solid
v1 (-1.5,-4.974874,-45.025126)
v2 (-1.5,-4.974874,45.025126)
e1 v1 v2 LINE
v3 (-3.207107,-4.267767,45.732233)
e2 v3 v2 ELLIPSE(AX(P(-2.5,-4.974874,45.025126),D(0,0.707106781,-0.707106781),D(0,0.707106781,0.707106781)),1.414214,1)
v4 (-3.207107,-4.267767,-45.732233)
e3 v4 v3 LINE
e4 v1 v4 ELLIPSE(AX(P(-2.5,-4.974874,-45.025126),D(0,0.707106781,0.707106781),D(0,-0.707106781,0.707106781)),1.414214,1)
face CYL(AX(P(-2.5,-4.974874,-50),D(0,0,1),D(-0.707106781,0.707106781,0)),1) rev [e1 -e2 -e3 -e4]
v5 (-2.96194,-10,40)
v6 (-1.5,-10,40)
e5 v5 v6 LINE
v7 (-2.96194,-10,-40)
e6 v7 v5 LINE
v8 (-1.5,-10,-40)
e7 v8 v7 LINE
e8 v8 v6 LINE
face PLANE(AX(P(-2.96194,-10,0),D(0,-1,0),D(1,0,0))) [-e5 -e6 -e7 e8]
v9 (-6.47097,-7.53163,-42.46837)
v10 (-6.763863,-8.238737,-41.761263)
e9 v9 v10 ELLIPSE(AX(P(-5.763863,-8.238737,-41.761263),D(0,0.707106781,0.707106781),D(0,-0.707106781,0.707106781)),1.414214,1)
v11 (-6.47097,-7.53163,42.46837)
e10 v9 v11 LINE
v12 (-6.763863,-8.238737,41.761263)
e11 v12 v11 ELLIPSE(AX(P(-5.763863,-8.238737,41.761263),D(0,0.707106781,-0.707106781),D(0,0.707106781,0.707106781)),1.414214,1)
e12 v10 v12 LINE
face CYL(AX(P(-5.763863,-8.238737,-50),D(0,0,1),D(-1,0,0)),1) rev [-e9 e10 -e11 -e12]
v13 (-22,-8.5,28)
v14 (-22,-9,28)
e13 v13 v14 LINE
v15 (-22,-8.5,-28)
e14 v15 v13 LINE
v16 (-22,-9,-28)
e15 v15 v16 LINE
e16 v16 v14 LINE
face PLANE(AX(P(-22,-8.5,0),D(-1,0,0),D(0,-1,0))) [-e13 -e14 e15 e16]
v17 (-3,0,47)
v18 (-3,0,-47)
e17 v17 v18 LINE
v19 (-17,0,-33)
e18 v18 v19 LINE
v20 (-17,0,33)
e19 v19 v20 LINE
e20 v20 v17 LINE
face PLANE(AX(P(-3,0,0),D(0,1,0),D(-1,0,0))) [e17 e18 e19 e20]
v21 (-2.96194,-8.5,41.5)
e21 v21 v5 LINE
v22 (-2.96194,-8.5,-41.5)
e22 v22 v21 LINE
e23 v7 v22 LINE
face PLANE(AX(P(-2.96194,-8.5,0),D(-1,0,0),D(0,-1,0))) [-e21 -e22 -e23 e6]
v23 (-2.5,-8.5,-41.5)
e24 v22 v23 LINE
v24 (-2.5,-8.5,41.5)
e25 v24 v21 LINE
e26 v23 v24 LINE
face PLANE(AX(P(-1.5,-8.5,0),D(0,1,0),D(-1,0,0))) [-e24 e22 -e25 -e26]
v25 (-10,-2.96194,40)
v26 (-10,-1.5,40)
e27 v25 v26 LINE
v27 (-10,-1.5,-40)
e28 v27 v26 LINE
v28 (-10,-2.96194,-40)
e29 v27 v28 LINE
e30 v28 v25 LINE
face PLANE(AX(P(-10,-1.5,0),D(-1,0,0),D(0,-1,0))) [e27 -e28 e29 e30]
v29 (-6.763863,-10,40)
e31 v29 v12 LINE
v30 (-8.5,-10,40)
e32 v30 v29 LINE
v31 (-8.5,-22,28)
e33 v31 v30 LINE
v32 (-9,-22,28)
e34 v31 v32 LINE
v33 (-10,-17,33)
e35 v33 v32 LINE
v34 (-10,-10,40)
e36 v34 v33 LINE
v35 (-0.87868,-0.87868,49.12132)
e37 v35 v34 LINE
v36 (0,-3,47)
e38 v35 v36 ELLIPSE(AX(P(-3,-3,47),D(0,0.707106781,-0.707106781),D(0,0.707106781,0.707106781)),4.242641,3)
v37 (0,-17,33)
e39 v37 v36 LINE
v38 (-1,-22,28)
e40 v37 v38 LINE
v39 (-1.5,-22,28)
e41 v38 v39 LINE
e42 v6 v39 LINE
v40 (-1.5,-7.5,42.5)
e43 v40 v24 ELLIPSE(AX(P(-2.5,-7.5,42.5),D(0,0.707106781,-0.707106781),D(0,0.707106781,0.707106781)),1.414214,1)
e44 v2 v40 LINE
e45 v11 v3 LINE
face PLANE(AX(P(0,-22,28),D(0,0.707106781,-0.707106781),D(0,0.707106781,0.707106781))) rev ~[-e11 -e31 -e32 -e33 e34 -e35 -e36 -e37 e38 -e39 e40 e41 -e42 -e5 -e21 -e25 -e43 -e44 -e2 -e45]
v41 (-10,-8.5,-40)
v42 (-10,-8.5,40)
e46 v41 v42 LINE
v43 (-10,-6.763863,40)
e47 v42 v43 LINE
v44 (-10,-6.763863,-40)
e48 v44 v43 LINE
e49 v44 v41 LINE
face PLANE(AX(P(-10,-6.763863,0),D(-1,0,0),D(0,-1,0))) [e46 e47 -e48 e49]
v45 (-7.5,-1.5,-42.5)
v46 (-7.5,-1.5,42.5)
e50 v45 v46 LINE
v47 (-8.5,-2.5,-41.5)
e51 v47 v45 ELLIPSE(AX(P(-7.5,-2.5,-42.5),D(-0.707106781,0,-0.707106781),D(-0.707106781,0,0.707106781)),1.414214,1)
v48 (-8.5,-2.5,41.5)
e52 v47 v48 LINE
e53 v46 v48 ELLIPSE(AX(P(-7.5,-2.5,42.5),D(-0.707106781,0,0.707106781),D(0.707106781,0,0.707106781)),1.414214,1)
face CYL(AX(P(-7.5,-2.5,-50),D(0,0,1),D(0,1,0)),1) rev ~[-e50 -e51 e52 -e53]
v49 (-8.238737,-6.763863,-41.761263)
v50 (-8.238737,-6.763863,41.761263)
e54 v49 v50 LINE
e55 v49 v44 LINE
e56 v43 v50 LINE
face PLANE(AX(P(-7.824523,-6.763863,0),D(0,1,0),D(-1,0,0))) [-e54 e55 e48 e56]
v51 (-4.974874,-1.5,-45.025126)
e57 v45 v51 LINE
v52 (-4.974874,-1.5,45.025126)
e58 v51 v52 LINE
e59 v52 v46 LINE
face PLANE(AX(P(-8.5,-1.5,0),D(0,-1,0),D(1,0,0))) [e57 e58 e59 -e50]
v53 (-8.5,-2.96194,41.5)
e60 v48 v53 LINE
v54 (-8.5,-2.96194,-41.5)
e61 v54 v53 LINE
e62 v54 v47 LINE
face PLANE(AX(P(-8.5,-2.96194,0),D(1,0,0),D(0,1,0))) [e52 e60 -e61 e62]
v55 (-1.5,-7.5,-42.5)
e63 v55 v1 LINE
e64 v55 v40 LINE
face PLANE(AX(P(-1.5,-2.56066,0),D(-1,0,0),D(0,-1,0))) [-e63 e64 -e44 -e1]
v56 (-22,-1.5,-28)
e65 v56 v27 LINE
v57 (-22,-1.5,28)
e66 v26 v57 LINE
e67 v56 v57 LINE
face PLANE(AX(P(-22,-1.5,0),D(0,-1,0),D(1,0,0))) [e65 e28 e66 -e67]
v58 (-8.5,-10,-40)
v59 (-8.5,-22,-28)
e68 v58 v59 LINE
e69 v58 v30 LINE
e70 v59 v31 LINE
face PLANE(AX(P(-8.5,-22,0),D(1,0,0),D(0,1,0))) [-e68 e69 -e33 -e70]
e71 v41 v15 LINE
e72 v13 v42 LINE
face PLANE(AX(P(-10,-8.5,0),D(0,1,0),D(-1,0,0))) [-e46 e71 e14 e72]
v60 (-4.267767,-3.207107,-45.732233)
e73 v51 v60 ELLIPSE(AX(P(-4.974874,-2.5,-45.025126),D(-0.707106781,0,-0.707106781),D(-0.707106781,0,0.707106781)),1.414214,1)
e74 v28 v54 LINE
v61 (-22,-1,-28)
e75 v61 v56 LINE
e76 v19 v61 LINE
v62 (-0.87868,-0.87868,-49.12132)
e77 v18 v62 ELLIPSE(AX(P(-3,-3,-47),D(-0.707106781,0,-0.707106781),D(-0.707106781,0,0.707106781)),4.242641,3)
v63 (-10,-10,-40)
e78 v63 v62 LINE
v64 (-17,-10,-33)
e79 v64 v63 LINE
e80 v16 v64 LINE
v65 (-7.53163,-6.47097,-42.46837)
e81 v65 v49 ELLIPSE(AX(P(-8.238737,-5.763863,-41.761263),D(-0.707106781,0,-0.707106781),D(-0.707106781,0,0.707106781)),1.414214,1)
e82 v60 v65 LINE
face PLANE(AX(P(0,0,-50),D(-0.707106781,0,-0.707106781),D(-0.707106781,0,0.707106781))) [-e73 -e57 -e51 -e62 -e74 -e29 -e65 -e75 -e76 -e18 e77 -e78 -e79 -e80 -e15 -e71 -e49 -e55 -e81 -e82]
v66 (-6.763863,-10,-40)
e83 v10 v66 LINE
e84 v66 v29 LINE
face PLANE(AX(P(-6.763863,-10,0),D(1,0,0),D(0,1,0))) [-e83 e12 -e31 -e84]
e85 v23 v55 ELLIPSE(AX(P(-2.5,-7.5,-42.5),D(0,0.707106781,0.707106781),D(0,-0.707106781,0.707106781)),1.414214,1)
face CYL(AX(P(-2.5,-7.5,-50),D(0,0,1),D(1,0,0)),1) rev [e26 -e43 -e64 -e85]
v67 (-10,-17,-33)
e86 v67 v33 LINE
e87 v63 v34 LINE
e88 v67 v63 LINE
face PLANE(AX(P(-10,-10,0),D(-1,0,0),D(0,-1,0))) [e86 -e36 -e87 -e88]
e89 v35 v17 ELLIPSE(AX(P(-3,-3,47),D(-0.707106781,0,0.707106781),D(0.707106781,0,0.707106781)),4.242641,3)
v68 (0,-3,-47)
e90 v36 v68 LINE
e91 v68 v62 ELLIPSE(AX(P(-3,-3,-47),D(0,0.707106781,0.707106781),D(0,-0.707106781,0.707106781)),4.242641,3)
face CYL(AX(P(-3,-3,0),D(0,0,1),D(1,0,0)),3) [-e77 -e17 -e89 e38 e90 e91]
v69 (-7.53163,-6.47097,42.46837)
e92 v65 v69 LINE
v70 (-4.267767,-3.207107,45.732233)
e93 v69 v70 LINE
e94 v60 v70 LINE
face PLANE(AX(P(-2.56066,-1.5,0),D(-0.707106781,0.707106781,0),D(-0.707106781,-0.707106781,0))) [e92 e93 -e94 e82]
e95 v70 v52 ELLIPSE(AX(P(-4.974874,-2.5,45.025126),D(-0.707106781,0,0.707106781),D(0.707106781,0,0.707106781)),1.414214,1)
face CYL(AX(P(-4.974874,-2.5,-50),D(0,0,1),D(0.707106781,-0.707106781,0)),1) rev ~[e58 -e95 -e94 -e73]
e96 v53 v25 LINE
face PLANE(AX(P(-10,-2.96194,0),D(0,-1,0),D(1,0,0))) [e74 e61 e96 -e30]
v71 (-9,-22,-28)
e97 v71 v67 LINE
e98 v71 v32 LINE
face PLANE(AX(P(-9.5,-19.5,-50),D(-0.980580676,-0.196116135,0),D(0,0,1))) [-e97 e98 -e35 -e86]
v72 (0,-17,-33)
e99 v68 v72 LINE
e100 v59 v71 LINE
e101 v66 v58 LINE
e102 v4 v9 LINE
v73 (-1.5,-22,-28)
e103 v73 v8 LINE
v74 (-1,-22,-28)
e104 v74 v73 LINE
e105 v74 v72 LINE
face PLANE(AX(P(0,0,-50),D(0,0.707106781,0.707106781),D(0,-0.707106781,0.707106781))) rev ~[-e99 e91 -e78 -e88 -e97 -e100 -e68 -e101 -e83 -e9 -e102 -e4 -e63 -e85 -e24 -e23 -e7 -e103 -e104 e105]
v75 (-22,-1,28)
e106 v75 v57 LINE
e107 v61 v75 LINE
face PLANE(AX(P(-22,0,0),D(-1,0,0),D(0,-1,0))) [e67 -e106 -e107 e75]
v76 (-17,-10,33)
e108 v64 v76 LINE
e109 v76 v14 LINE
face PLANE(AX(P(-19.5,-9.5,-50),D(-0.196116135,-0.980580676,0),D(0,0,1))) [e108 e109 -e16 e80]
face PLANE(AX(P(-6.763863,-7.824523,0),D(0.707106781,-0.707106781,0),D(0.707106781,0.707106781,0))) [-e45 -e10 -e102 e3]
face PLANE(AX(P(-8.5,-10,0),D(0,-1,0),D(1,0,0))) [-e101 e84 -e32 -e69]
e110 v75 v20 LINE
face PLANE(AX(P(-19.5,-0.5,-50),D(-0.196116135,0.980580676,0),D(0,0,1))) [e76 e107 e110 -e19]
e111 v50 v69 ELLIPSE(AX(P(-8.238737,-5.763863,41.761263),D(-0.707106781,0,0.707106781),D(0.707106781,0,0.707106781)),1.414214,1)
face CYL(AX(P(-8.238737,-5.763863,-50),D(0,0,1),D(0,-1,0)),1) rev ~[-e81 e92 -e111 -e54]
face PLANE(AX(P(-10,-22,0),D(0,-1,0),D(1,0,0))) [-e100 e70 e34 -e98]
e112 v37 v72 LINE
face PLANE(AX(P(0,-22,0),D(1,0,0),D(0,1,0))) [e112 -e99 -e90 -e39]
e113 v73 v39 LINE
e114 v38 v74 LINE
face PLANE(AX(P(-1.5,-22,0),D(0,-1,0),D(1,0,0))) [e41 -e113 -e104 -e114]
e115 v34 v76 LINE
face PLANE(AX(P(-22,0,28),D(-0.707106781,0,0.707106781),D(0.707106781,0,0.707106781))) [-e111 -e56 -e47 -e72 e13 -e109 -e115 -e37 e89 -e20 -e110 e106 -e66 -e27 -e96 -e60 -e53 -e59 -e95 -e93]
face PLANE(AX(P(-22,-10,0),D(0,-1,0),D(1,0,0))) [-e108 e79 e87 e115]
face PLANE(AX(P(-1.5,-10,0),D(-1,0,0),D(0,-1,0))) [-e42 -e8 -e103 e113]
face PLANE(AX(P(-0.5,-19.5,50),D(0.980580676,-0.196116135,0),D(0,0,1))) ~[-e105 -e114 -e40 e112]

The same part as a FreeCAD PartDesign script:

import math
import FreeCAD as App
import Part
import Sketcher
from FreeCAD import Vector
Q = App.Units.Quantity


def edges_at(feature, points):
    """Names of the edges that pass closest to the given points."""
    edges = feature.Shape.Edges
    near = lambda p: min(range(len(edges)), key=lambda i: edges[i].distToShape(Part.Vertex(*p))[0])
    return sorted({f"Edge{near(p) + 1}" for p in points})


def add_polygon(sketch, points):
    """Adds a closed chain of lines whose ends are joined by coincident constraints."""
    first, n = sketch.GeometryCount, len(points)
    for a, b in zip(points, points[1:] + points[:1]):
        sketch.addGeometry(Part.LineSegment(App.Vector(*a, 0), App.Vector(*b, 0)), False)
    for i in range(n):
        sketch.addConstraint(Sketcher.Constraint("Coincident", first + i, 2, first + (i + 1) % n, 1))

doc = App.newDocument("Part")
body = doc.addObject("PartDesign::Body", "Body")

# Sketch on XY plane
sketch1 = body.newObject("Sketcher::SketchObject", "Sketch")
sketch1.AttachmentSupport = (doc.getObject("XY_Plane"), [""])
sketch1.MapMode = "FlatFace"
sketch1.addGeometry(Part.LineSegment(Vector(-3, 0, 0), Vector(-22, 0, 0)), False)
sketch1.addGeometry(Part.LineSegment(Vector(-22, 0, 0), Vector(-22, -1.5, 0)), False)
sketch1.addGeometry(Part.LineSegment(Vector(-22, -1.5, 0), Vector(-10, -1.5, 0)), False)
sketch1.addGeometry(Part.LineSegment(Vector(-10, -1.5, 0), Vector(-10, -3, 0)), False)
sketch1.addGeometry(Part.LineSegment(Vector(-10, -3, 0), Vector(-8.5, -3, 0)), False)
sketch1.addGeometry(Part.LineSegment(Vector(-8.5, -3, 0), Vector(-8.5, -1.5, 0)), False)
sketch1.addGeometry(Part.LineSegment(Vector(-8.5, -1.5, 0), Vector(-2.6, -1.5, 0)), False)
sketch1.addGeometry(Part.LineSegment(Vector(-2.6, -1.5, 0), Vector(-7.8, -6.8, 0)), False)
sketch1.addGeometry(Part.LineSegment(Vector(-7.8, -6.8, 0), Vector(-10, -6.8, 0)), False)
sketch1.addGeometry(Part.LineSegment(Vector(-10, -6.8, 0), Vector(-10, -8.5, 0)), False)
sketch1.addGeometry(Part.LineSegment(Vector(-10, -8.5, 0), Vector(-22, -8.5, 0)), False)
sketch1.addGeometry(Part.LineSegment(Vector(-22, -8.5, 0), Vector(-22, -10, 0)), False)
sketch1.addGeometry(Part.LineSegment(Vector(-22, -10, 0), Vector(-10, -10, 0)), False)
sketch1.addGeometry(Part.LineSegment(Vector(-10, -10, 0), Vector(-10, -22, 0)), False)
sketch1.addGeometry(Part.LineSegment(Vector(-10, -22, 0), Vector(-8.5, -22, 0)), False)
sketch1.addGeometry(Part.LineSegment(Vector(-8.5, -22, 0), Vector(-8.5, -10, 0)), False)
sketch1.addGeometry(Part.LineSegment(Vector(-8.5, -10, 0), Vector(-6.8, -10, 0)), False)
sketch1.addGeometry(Part.LineSegment(Vector(-6.8, -10, 0), Vector(-6.8, -7.8, 0)), False)
sketch1.addGeometry(Part.LineSegment(Vector(-6.8, -7.8, 0), Vector(-1.5, -2.6, 0)), False)
sketch1.addGeometry(Part.LineSegment(Vector(-1.5, -2.6, 0), Vector(-1.5, -8.5, 0)), False)
sketch1.addGeometry(Part.LineSegment(Vector(-1.5, -8.5, 0), Vector(-3, -8.5, 0)), False)
sketch1.addGeometry(Part.LineSegment(Vector(-3, -8.5, 0), Vector(-3, -10, 0)), False)
sketch1.addGeometry(Part.LineSegment(Vector(-3, -10, 0), Vector(-1.5, -10, 0)), False)
sketch1.addGeometry(Part.LineSegment(Vector(-1.5, -10, 0), Vector(-1.5, -22, 0)), False)
sketch1.addGeometry(Part.LineSegment(Vector(-1.5, -22, 0), Vector(0, -22, 0)), False)
sketch1.addGeometry(Part.LineSegment(Vector(0, -22, 0), Vector(0, -3, 0)), False)
sketch1.addGeometry(Part.ArcOfCircle(Part.Circle(Vector(-3, -3, 0), Vector(0, 0, 1), 3), math.radians(0), math.radians(90)), False)
sketch1.addConstraint(Sketcher.Constraint("Coincident", 0, 2, 1, 1))
sketch1.addConstraint(Sketcher.Constraint("Coincident", 1, 2, 2, 1))
sketch1.addConstraint(Sketcher.Constraint("Coincident", 2, 2, 3, 1))
sketch1.addConstraint(Sketcher.Constraint("Coincident", 3, 2, 4, 1))
sketch1.addConstraint(Sketcher.Constraint("Coincident", 4, 2, 5, 1))
sketch1.addConstraint(Sketcher.Constraint("Coincident", 5, 2, 6, 1))
sketch1.addConstraint(Sketcher.Constraint("Coincident", 6, 2, 7, 1))
sketch1.addConstraint(Sketcher.Constraint("Coincident", 7, 2, 8, 1))
sketch1.addConstraint(Sketcher.Constraint("Coincident", 8, 2, 9, 1))
sketch1.addConstraint(Sketcher.Constraint("Coincident", 9, 2, 10, 1))
sketch1.addConstraint(Sketcher.Constraint("Coincident", 10, 2, 11, 1))
sketch1.addConstraint(Sketcher.Constraint("Coincident", 11, 2, 12, 1))
sketch1.addConstraint(Sketcher.Constraint("Coincident", 12, 2, 13, 1))
sketch1.addConstraint(Sketcher.Constraint("Coincident", 13, 2, 14, 1))
sketch1.addConstraint(Sketcher.Constraint("Coincident", 14, 2, 15, 1))
sketch1.addConstraint(Sketcher.Constraint("Coincident", 15, 2, 16, 1))
sketch1.addConstraint(Sketcher.Constraint("Coincident", 16, 2, 17, 1))
sketch1.addConstraint(Sketcher.Constraint("Coincident", 17, 2, 18, 1))
sketch1.addConstraint(Sketcher.Constraint("Coincident", 18, 2, 19, 1))
sketch1.addConstraint(Sketcher.Constraint("Coincident", 19, 2, 20, 1))
sketch1.addConstraint(Sketcher.Constraint("Coincident", 20, 2, 21, 1))
sketch1.addConstraint(Sketcher.Constraint("Coincident", 21, 2, 22, 1))
sketch1.addConstraint(Sketcher.Constraint("Coincident", 22, 2, 23, 1))
sketch1.addConstraint(Sketcher.Constraint("Coincident", 23, 2, 24, 1))
sketch1.addConstraint(Sketcher.Constraint("Coincident", 24, 2, 25, 1))
sketch1.addConstraint(Sketcher.Constraint("Tangent", 25, 2, 26, 1))
sketch1.addConstraint(Sketcher.Constraint("Tangent", 26, 2, 0, 1))
sketch1.addConstraint(Sketcher.Constraint("Horizontal", 0))
sketch1.addConstraint(Sketcher.Constraint("Vertical", 1))
sketch1.addConstraint(Sketcher.Constraint("Horizontal", 2))
sketch1.addConstraint(Sketcher.Constraint("Vertical", 3))
sketch1.addConstraint(Sketcher.Constraint("Horizontal", 4))
sketch1.addConstraint(Sketcher.Constraint("Vertical", 5))
sketch1.addConstraint(Sketcher.Constraint("Horizontal", 6))
sketch1.addConstraint(Sketcher.Constraint("Horizontal", 8))
sketch1.addConstraint(Sketcher.Constraint("Vertical", 9))
sketch1.addConstraint(Sketcher.Constraint("Horizontal", 10))
sketch1.addConstraint(Sketcher.Constraint("Vertical", 11))
sketch1.addConstraint(Sketcher.Constraint("Horizontal", 12))
sketch1.addConstraint(Sketcher.Constraint("Vertical", 13))
sketch1.addConstraint(Sketcher.Constraint("Horizontal", 14))
sketch1.addConstraint(Sketcher.Constraint("Vertical", 15))
sketch1.addConstraint(Sketcher.Constraint("Horizontal", 16))
sketch1.addConstraint(Sketcher.Constraint("Vertical", 17))
sketch1.addConstraint(Sketcher.Constraint("Vertical", 19))
sketch1.addConstraint(Sketcher.Constraint("Horizontal", 20))
sketch1.addConstraint(Sketcher.Constraint("Vertical", 21))
sketch1.addConstraint(Sketcher.Constraint("Horizontal", 22))
sketch1.addConstraint(Sketcher.Constraint("Vertical", 23))
sketch1.addConstraint(Sketcher.Constraint("Horizontal", 24))
sketch1.addConstraint(Sketcher.Constraint("Vertical", 25))
sketch1.addConstraint(Sketcher.Constraint("PointOnObject", 0, 2, -1))
sketch1.addConstraint(Sketcher.Constraint("PointOnObject", 24, 2, -2))
sketch1.addConstraint(Sketcher.Constraint("Parallel", 7, 18))
sketch1.addConstraint(Sketcher.Constraint("Horizontal", 2, 2, 5, 2))
sketch1.addConstraint(Sketcher.Constraint("Horizontal", 12, 2, 15, 2))
sketch1.addConstraint(Sketcher.Constraint("Horizontal", 10, 2, 19, 2))
sketch1.addConstraint(Sketcher.Constraint("Horizontal", 16, 2, 21, 2))
sketch1.addConstraint(Sketcher.Constraint("Horizontal", 14, 2, 23, 2))
sketch1.addConstraint(Sketcher.Constraint("Vertical", 3, 2, 8, 2))
sketch1.addConstraint(Sketcher.Constraint("Vertical", 1, 2, 10, 2))
sketch1.addConstraint(Sketcher.Constraint("Vertical", 9, 2, 12, 2))
sketch1.addConstraint(Sketcher.Constraint("Vertical", 5, 2, 14, 2))
sketch1.addConstraint(Sketcher.Constraint("Vertical", 19, 2, 22, 2))
sketch1.addConstraint(Sketcher.Constraint("Equal", 14, 24))
sketch1.addConstraint(Sketcher.Constraint("Equal", 24, 1))
sketch1.addConstraint(Sketcher.Constraint("Equal", 22, 3))
sketch1.addConstraint(Sketcher.Constraint("Equal", 16, 9))
sketch1.addConstraint(Sketcher.Constraint("Equal", 1, 11))
sketch1.addConstraint(Sketcher.Constraint("Equal", 12, 13))
sketch1.addConstraint(Sketcher.Constraint("Equal", 8, 17))
sketch1.addConstraint(Sketcher.Constraint("Equal", 6, 19))
sketch1.addConstraint(Sketcher.Constraint("Equal", 0, 25))
sketch1.addConstraint(Sketcher.Constraint("Radius", 26, Q("3 mm")))
sketch1.addConstraint(Sketcher.Constraint("DistanceX", 0, 2, 0, 1, Q("19 mm")))
sketch1.addConstraint(Sketcher.Constraint("DistanceX", 2, 1, 2, 2, Q("12 mm")))
sketch1.addConstraint(Sketcher.Constraint("DistanceX", 4, 1, 4, 2, Q("1.5 mm")))
sketch1.addConstraint(Sketcher.Constraint("DistanceX", 6, 1, 6, 2, Q("5.93934 mm")))
sketch1.addConstraint(Sketcher.Constraint("DistanceX", 20, 2, 20, 1, Q("1.46194 mm")))
sketch1.addConstraint(Sketcher.Constraint("DistanceX", 8, 2, 8, 1, Q("2.175477 mm")))
pad1 = body.newObject("PartDesign::Pad", "Pad")
pad1.Profile = sketch1
pad1.Length = 100
pad1.Midplane = True
doc.recompute()

chamfer = body.newObject("PartDesign::Chamfer", "Chamfer")
chamfer.Base = (pad1, edges_at(pad1, [(-22, -10, 0)]))
chamfer.ChamferType = "Two distances"
chamfer.Size = 5
chamfer.Size2 = 1
chamfer.FlipDirection = True
doc.recompute()

chamfer2 = body.newObject("PartDesign::Chamfer", "Chamfer001")
chamfer2.Base = (chamfer, edges_at(chamfer, [(0, -22, 0)]))
chamfer2.ChamferType = "Two distances"
chamfer2.Size = 5
chamfer2.Size2 = 1
doc.recompute()

chamfer3 = body.newObject("PartDesign::Chamfer", "Chamfer002")
chamfer3.Base = (chamfer2, edges_at(chamfer2, [(-22, 0, 0)]))
chamfer3.ChamferType = "Two distances"
chamfer3.Size = 1
chamfer3.Size2 = 5
chamfer3.FlipDirection = True
doc.recompute()

chamfer4 = body.newObject("PartDesign::Chamfer", "Chamfer003")
chamfer4.Base = (chamfer3, edges_at(chamfer3, [(-10, -22, 0)]))
chamfer4.ChamferType = "Two distances"
chamfer4.Size = 1
chamfer4.Size2 = 5
doc.recompute()

fillet = body.newObject("PartDesign::Fillet", "Fillet")
fillet.Base = (chamfer4, edges_at(chamfer4, [
    (-2.561, -1.5, 0),
    (-1.5, -2.561, 0),
    (-6.764, -7.825, 0),
    (-7.825, -6.764, 0),
    (-1.5, -8.5, 0),
    (-8.5, -1.5, 0),
]))
fillet.Radius = 1

# Sketch on XZ plane
sketch2 = body.newObject("Sketcher::SketchObject", "Sketch001")
sketch2.AttachmentSupport = (doc.getObject("XZ_Plane"), [""])
sketch2.MapMode = "FlatFace"
add_polygon(sketch2, [(0, 50), (-22, 50), (-22, 28)])  # lines 0-2
add_polygon(sketch2, [(-22, -28), (-22, -50), (0, -50)])  # lines 3-5
sketch2.addConstraint(Sketcher.Constraint("Horizontal", 0))
sketch2.addConstraint(Sketcher.Constraint("Vertical", 1))
sketch2.addConstraint(Sketcher.Constraint("Vertical", 3))
sketch2.addConstraint(Sketcher.Constraint("Horizontal", 4))
sketch2.addConstraint(Sketcher.Constraint("Symmetric", 2, 2, 4, 2, -1, 1))
sketch2.addConstraint(Sketcher.Constraint("Symmetric", 1, 2, 5, 2, -1))
sketch2.addConstraint(Sketcher.Constraint("PointOnObject", 2, 2, -2))
sketch2.addConstraint(Sketcher.Constraint("Perpendicular", 2, 5))
sketch2.addConstraint(Sketcher.Constraint("DistanceX", 0, 2, 0, 1, Q("22 mm")))
sketch2.addConstraint(Sketcher.Constraint("DistanceY", -1, 1, 0, 2, Q("50 mm")))
pocket1 = body.newObject("PartDesign::Pocket", "Pocket")
pocket1.Profile = sketch2
pocket1.Length = 25
pocket1.Reversed = True

# Sketch on YZ plane
sketch3 = body.newObject("Sketcher::SketchObject", "Sketch002")
sketch3.AttachmentSupport = (doc.getObject("YZ_Plane"), [""])
sketch3.MapMode = "FlatFace"
add_polygon(sketch3, [(-22, 28), (0, 50), (-22, 50)])  # lines 0-2
add_polygon(sketch3, [(-22, -50), (0, -50), (-22, -28)])  # lines 3-5
sketch3.addConstraint(Sketcher.Constraint("Horizontal", 1))
sketch3.addConstraint(Sketcher.Constraint("Vertical", 2))
sketch3.addConstraint(Sketcher.Constraint("Horizontal", 3))
sketch3.addConstraint(Sketcher.Constraint("Vertical", 5))
sketch3.addConstraint(Sketcher.Constraint("Symmetric", 0, 2, 3, 2, -1, 1))
sketch3.addConstraint(Sketcher.Constraint("Symmetric", 2, 2, 4, 2, -1))
sketch3.addConstraint(Sketcher.Constraint("PointOnObject", 0, 2, -2))
sketch3.addConstraint(Sketcher.Constraint("Perpendicular", 0, 4))
sketch3.addConstraint(Sketcher.Constraint("DistanceX", 1, 2, 1, 1, Q("22 mm")))
sketch3.addConstraint(Sketcher.Constraint("DistanceY", -1, 1, 0, 2, Q("50 mm")))
pocket2 = body.newObject("PartDesign::Pocket", "Pocket001")
pocket2.Profile = sketch3
pocket2.Length = 25

doc.recompute()
